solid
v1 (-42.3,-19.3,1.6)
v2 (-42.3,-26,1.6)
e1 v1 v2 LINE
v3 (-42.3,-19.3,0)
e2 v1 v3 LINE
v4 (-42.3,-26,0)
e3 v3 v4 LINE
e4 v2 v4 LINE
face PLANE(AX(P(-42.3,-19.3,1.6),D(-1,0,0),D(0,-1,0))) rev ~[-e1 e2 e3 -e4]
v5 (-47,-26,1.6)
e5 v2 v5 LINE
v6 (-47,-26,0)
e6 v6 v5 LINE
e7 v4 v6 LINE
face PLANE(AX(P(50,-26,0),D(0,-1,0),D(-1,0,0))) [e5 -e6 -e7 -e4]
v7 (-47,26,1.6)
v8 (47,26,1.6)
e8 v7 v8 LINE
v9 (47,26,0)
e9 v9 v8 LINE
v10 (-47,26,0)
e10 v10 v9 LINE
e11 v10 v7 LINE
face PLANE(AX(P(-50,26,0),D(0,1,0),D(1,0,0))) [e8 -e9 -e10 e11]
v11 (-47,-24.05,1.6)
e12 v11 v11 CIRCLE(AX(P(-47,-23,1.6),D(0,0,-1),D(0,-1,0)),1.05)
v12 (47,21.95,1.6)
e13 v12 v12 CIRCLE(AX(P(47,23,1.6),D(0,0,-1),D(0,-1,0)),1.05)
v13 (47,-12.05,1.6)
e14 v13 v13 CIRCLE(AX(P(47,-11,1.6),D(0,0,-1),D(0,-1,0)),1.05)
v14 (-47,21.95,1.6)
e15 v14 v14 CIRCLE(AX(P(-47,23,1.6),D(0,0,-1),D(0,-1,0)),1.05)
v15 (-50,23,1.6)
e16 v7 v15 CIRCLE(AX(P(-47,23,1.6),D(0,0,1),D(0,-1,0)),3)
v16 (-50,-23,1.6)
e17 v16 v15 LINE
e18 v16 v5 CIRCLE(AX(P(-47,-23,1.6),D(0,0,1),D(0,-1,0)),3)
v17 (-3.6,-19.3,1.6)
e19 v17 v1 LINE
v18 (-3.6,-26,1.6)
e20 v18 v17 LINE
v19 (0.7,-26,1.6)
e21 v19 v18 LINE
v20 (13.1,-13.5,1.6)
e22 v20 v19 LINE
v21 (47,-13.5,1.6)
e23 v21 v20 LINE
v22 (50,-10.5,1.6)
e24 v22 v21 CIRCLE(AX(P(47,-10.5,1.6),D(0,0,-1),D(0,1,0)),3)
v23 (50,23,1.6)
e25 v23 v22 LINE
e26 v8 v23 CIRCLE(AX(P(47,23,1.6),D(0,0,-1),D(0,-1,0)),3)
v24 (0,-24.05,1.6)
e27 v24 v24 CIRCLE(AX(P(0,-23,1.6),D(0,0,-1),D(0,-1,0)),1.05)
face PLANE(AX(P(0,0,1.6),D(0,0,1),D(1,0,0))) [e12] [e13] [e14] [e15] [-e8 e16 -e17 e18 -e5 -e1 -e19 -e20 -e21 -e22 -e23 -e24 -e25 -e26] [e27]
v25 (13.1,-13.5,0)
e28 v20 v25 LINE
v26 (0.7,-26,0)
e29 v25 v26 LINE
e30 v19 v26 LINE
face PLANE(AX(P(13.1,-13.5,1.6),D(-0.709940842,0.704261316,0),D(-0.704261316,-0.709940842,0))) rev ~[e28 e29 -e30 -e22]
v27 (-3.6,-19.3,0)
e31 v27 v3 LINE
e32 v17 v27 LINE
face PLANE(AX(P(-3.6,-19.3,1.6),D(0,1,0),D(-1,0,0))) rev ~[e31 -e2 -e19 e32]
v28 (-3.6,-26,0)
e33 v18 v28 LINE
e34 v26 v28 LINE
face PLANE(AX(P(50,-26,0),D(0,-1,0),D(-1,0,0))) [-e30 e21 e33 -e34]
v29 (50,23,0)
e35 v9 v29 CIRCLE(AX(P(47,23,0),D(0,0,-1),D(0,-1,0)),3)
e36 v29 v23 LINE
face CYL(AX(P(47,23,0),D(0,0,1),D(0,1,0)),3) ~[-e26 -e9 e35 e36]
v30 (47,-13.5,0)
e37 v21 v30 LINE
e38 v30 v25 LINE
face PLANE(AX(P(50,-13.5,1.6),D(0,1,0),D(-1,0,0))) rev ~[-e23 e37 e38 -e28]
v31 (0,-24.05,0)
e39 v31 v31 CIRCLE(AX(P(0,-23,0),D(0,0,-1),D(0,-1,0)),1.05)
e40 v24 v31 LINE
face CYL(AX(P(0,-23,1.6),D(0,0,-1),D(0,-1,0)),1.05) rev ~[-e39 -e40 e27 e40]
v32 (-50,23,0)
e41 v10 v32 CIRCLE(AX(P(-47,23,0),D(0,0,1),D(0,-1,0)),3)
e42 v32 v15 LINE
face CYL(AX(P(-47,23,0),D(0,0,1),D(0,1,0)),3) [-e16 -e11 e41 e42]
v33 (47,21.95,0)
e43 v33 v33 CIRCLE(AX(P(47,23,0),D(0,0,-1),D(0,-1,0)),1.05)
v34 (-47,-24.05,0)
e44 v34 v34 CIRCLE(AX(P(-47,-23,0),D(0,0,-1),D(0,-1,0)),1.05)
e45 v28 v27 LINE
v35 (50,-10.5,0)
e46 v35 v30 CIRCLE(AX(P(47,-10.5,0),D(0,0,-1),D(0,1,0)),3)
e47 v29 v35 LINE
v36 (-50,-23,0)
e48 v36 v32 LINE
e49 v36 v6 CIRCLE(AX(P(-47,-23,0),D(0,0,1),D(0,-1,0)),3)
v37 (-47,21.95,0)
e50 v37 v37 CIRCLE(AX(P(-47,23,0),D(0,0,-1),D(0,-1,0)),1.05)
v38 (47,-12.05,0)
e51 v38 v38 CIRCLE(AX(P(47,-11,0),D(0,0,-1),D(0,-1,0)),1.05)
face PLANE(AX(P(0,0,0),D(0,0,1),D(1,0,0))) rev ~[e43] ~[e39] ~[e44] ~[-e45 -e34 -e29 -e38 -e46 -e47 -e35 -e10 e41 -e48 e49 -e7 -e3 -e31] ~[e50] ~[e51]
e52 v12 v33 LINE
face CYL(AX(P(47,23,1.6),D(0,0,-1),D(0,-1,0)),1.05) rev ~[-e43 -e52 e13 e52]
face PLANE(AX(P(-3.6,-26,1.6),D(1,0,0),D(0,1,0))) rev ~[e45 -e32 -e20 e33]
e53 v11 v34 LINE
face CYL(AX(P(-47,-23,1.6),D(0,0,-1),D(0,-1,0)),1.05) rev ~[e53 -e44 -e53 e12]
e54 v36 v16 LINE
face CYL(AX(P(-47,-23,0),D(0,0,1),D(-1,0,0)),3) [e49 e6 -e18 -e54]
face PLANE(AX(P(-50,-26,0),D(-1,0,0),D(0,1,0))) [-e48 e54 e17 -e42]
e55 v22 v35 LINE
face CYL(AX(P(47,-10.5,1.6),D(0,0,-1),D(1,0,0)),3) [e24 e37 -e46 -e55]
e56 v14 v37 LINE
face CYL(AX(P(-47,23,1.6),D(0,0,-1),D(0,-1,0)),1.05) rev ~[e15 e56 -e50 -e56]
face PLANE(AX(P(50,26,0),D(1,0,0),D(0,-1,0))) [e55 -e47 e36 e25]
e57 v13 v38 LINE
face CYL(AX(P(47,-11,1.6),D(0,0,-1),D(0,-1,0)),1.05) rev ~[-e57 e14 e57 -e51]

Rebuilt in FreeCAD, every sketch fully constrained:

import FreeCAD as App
import Part
import Sketcher
Q = App.Units.Quantity


def edges_at(feature, points):
    """Names of the edges that pass closest to the given points."""
    edges = feature.Shape.Edges
    near = lambda p: min(range(len(edges)), key=lambda i: edges[i].distToShape(Part.Vertex(*p))[0])
    return sorted({f"Edge{near(p) + 1}" for p in points})

doc = App.newDocument("Part")
body = doc.addObject("PartDesign::Body", "Body")

sketch1 = body.newObject("Sketcher::SketchObject", "Sketch")
sketch1.AttachmentSupport = (doc.getObject("XY_Plane"), [""])
sketch1.MapMode = "FlatFace"
sketch1.addGeometry([
    Part.LineSegment(App.Vector(50, 26, 0), App.Vector(-50, 26, 0)),
    Part.LineSegment(App.Vector(-50, 26, 0), App.Vector(-50, -26, 0)),
    Part.LineSegment(App.Vector(-50, -26, 0), App.Vector(50, -26, 0)),
    Part.LineSegment(App.Vector(50, -26, 0), App.Vector(50, 26, 0)),
], False)
sketch1.addConstraint([
    Sketcher.Constraint("Coincident", 0, 2, 1, 1),
    Sketcher.Constraint("Coincident", 1, 2, 2, 1),
    Sketcher.Constraint("Coincident", 2, 2, 3, 1),
    Sketcher.Constraint("Coincident", 3, 2, 0, 1),
    Sketcher.Constraint("Horizontal", 0),
    Sketcher.Constraint("Vertical", 1),
    Sketcher.Constraint("Horizontal", 2),
    Sketcher.Constraint("Vertical", 3),
    Sketcher.Constraint("Symmetric", 0, 2, 2, 2, -1, 1),
    Sketcher.Constraint("DistanceX", 0, 2, 0, 1, Q("100 mm")),
    Sketcher.Constraint("DistanceY", 1, 2, 1, 1, Q("52 mm")),
])
pad1 = body.newObject("PartDesign::Pad", "Pad")
pad1.Profile = sketch1
pad1.Length = 1.6

sketch2 = body.newObject("Sketcher::SketchObject", "Sketch001")
sketch2.AttachmentSupport = (doc.getObject("XY_Plane"), [""])
sketch2.MapMode = "FlatFace"
sketch2.AttachmentOffset = App.Placement(App.Vector(0, 0, 1.6), App.Rotation())
sketch2.addGeometry([
    Part.Circle(App.Vector(-47, -23, 0), App.Vector(0, 0, 1), 1.1),
    Part.Circle(App.Vector(0, -23, 0), App.Vector(0, 0, 1), 1.1),
    Part.Circle(App.Vector(-47, 23, 0), App.Vector(0, 0, 1), 1.1),
    Part.Circle(App.Vector(47, 23, 0), App.Vector(0, 0, 1), 1.1),
    Part.Circle(App.Vector(47, -11, 0), App.Vector(0, 0, 1), 1.1),
], False)
sketch2.addConstraint([
    Sketcher.Constraint("Equal", 0, 1),
    Sketcher.Constraint("Equal", 1, 2),
    Sketcher.Constraint("Equal", 2, 3),
    Sketcher.Constraint("Equal", 3, 4),
    Sketcher.Constraint("Symmetric", 0, 3, 3, 3, -1, 1),
    Sketcher.Constraint("Symmetric", 2, 3, 3, 3, -2),
    Sketcher.Constraint("PointOnObject", 1, 3, -2),
    Sketcher.Constraint("Horizontal", 0, 3, 1, 3),
    Sketcher.Constraint("Vertical", 3, 3, 4, 3),
    Sketcher.Constraint("Diameter", 0, Q("2.1 mm")),
    Sketcher.Constraint("DistanceX", 0, 3, -1, 1, Q("47 mm")),
    Sketcher.Constraint("DistanceY", 0, 3, -1, 1, Q("23 mm")),
    Sketcher.Constraint("DistanceY", 4, 3, -1, 1, Q("11 mm")),
])
doc.recompute()
hole = body.newObject("PartDesign::Hole", "Hole")
hole.Profile = sketch2
hole.ThreadType = "None"
hole.Diameter = 2.1
hole.DepthType = "Dimension"
hole.Depth = 10
hole.DrillPoint = "Angled"
hole.DrillPointAngle = 118

sketch3 = body.newObject("Sketcher::SketchObject", "Sketch002")
sketch3.AttachmentSupport = (doc.getObject("XY_Plane"), [""])
sketch3.MapMode = "FlatFace"
sketch3.AttachmentOffset = App.Placement(App.Vector(0, 0, 1.6), App.Rotation())
sketch3.addGeometry([
    Part.LineSegment(App.Vector(-42, -19, 0), App.Vector(-42, -26, 0)),
    Part.LineSegment(App.Vector(-42, -26, 0), App.Vector(-4, -26, 0)),
    Part.LineSegment(App.Vector(-4, -26, 0), App.Vector(-4, -19, 0)),
    Part.LineSegment(App.Vector(-4, -19, 0), App.Vector(-42, -19, 0)),
    Part.LineSegment(App.Vector(13, -14, 0), App.Vector(1, -26, 0)),
    Part.LineSegment(App.Vector(1, -26, 0), App.Vector(50, -26, 0)),
    Part.LineSegment(App.Vector(50, -26, 0), App.Vector(50, -14, 0)),
    Part.LineSegment(App.Vector(50, -14, 0), App.Vector(13, -14, 0)),
], False)
sketch3.addConstraint([
    Sketcher.Constraint("Coincident", 0, 2, 1, 1),
    Sketcher.Constraint("Coincident", 1, 2, 2, 1),
    Sketcher.Constraint("Coincident", 2, 2, 3, 1),
    Sketcher.Constraint("Coincident", 3, 2, 0, 1),
    Sketcher.Constraint("Coincident", 4, 2, 5, 1),
    Sketcher.Constraint("Coincident", 5, 2, 6, 1),
    Sketcher.Constraint("Coincident", 6, 2, 7, 1),
    Sketcher.Constraint("Coincident", 7, 2, 4, 1),
    Sketcher.Constraint("Vertical", 0),
    Sketcher.Constraint("Horizontal", 1),
    Sketcher.Constraint("Vertical", 2),
    Sketcher.Constraint("Horizontal", 3),
    Sketcher.Constraint("Horizontal", 5),
    Sketcher.Constraint("Vertical", 6),
    Sketcher.Constraint("Horizontal", 7),
    Sketcher.Constraint("Horizontal", 1, 2, 4, 2),
    Sketcher.Constraint("DistanceY", 0, 2, 0, 1, Q("6.7 mm")),
    Sketcher.Constraint("DistanceY", 6, 1, 6, 2, Q("12.5 mm")),
    Sketcher.Constraint("DistanceX", 1, 1, 1, 2, Q("38.7 mm")),
    Sketcher.Constraint("DistanceX", 5, 1, 5, 2, Q("49.3 mm")),
    Sketcher.Constraint("DistanceX", 7, 2, 7, 1, Q("36.9 mm")),
    Sketcher.Constraint("DistanceY", 0, 2, -1, 1, Q("26 mm")),
    Sketcher.Constraint("DistanceX", -1, 1, 5, 2, Q("50 mm")),
    Sketcher.Constraint("DistanceX", 0, 2, 4, 2, Q("43 mm")),
])
pocket1 = body.newObject("PartDesign::Pocket", "Pocket")
pocket1.Profile = sketch3
pocket1.Length = 1.6
doc.recompute()

fillet = body.newObject("PartDesign::Fillet", "Fillet")
fillet.Base = (pocket1, edges_at(pocket1, [
    (-50, -26, 0.8),
    (-50, 26, 0.8),
    (50, -13.5, 0.8),
    (50, 26, 0.8),
]))
fillet.Radius = 3

doc.recompute()
